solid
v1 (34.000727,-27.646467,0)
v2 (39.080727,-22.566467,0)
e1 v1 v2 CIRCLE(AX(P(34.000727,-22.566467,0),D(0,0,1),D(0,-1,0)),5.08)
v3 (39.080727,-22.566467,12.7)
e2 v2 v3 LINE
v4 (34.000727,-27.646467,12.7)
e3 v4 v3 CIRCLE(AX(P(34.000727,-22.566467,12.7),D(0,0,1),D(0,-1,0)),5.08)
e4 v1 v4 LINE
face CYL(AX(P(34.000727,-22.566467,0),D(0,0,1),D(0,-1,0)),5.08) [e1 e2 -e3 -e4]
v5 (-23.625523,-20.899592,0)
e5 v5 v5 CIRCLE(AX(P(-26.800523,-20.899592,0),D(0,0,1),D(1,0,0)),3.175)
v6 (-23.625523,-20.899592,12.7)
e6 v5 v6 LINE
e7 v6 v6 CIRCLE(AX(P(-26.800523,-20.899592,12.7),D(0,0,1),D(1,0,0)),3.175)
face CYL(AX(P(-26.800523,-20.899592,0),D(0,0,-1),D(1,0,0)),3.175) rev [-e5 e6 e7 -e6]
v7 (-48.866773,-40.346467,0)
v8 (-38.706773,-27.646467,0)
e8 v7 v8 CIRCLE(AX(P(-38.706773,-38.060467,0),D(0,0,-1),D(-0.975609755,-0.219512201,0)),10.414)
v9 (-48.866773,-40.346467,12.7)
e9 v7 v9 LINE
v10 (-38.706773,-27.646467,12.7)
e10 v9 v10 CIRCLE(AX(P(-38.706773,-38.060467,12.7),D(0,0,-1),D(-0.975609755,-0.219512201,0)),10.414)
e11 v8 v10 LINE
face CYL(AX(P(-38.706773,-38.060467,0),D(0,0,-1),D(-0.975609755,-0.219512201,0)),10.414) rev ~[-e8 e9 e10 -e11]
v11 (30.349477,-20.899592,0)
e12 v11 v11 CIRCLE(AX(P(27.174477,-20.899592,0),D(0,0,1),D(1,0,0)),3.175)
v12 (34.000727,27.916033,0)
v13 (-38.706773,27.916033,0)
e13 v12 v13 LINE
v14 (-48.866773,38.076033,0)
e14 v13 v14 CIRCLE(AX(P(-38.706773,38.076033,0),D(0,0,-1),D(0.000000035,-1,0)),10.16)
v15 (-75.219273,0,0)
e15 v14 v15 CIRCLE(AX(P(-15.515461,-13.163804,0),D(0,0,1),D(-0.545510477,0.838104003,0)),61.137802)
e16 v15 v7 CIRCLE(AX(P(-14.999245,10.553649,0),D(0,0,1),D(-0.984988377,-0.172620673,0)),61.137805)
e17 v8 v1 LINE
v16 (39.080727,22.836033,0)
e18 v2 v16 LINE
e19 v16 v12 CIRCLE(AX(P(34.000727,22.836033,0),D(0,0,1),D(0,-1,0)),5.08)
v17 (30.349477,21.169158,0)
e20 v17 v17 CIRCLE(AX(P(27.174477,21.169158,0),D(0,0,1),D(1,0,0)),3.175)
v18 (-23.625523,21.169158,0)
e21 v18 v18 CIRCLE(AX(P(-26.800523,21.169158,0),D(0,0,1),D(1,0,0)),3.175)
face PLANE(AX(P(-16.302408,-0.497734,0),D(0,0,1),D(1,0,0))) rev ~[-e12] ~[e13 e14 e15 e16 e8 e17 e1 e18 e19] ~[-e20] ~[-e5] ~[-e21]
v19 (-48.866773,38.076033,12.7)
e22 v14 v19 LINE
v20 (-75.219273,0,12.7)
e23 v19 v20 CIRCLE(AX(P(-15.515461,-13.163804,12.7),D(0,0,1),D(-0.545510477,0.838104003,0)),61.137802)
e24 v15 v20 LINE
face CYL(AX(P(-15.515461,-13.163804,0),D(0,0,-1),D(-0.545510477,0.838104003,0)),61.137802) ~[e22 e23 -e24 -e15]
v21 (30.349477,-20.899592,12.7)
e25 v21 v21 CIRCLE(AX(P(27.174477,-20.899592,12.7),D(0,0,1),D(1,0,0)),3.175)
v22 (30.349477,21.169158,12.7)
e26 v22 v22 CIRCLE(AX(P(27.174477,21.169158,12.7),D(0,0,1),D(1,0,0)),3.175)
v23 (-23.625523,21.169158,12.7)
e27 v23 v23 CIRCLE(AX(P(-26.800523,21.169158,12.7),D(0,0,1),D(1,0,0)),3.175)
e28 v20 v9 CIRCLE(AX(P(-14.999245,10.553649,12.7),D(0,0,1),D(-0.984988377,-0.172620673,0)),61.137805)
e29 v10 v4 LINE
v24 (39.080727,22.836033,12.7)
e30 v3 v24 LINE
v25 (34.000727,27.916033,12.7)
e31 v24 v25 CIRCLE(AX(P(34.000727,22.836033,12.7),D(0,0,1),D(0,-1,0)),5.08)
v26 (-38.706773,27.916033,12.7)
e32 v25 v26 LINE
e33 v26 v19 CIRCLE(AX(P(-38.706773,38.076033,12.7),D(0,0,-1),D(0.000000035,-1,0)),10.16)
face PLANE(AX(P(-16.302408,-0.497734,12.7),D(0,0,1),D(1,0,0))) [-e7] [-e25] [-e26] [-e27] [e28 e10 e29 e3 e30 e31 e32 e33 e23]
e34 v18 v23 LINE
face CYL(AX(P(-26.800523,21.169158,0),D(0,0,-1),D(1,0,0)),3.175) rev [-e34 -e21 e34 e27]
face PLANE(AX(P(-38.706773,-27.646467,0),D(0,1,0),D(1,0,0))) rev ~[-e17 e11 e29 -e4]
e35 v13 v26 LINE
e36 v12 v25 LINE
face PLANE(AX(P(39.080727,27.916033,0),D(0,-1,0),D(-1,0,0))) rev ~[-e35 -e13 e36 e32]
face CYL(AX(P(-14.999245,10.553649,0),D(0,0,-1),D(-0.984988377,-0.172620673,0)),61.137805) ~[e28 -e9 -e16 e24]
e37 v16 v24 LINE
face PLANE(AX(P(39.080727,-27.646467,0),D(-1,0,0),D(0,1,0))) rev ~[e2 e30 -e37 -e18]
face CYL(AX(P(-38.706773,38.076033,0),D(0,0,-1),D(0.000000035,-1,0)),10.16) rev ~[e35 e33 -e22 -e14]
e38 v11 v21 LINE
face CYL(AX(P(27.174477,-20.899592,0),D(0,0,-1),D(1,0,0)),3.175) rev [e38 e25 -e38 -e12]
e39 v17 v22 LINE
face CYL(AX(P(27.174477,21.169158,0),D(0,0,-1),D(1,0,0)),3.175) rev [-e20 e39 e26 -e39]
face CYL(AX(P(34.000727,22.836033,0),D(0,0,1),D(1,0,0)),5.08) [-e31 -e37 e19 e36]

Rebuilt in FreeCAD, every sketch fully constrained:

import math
import FreeCAD as App
import Part
import Sketcher
Q = App.Units.Quantity


def edges_at(feature, points):
    """Names of the edges that pass closest to the given points."""
    edges = feature.Shape.Edges
    near = lambda p: min(range(len(edges)), key=lambda i: edges[i].distToShape(Part.Vertex(*p))[0])
    return sorted({f"Edge{near(p) + 1}" for p in points})

doc = App.newDocument("Part")
params = doc.addObject("Spreadsheet::Sheet", "Params")
for row, (alias, value) in enumerate([
    ("sketch1_radius", "0.4 in"),
    ("sketch1_diameter", "0.25 in"),
    ("sketch1_radius2", "0.41 in"),
    ("sketch1_radius3", "2.4070001 in"),
    ("sketch1_width", "3.0625 in"),
    ("pad1_length", "0.5 in"),
    ("fillet_radius", "0.2 in"),
], start=1):
    params.set(f"A{row}", alias)
    params.set(f"B{row}", "=" + value)
    params.setAlias(f"B{row}", alias)

body = doc.addObject("PartDesign::Body", "Body")

# Sketch on XY plane
sketch1 = doc.addObject("Sketcher::SketchObject", "Sketch")
body.addObject(sketch1)
sketch1.AttachmentSupport = (doc.XY_Plane, [""])
sketch1.MapMode = "FlatFace"
sketch1.addGeometry([
    Part.LineSegment(App.Vector(-38.7, -27.6, 0), App.Vector(39.1, -27.6, 0)),  # 0
    Part.LineSegment(App.Vector(39.1, -27.6, 0), App.Vector(39.1, 27.9, 0)),  # 1
    Part.LineSegment(App.Vector(39.1, 27.9, 0), App.Vector(-38.7, 27.9, 0)),  # 2
    Part.ArcOfCircle(Part.Circle(App.Vector(-38.7, 38.1, 0), App.Vector(0, 0, 1), 10.2), math.radians(180), math.radians(270)),  # 3
    Part.ArcOfCircle(Part.Circle(App.Vector(-15.5, -13.2, 0), App.Vector(0, 0, 1), 61.1), math.radians(123), math.radians(168)),  # 4
    Part.ArcOfCircle(Part.Circle(App.Vector(-15, 10.6, 0), App.Vector(0, 0, 1), 61.1), math.radians(-170), math.radians(-124)),  # 5
    Part.ArcOfCircle(Part.Circle(App.Vector(-38.7, -38.1, 0), App.Vector(0, 0, 1), 10.4), math.radians(90), math.radians(193)),  # 6
    Part.Circle(App.Vector(-26.8, -20.9, 0), App.Vector(0, 0, 1), 3.2),  # 7
    Part.Circle(App.Vector(27.2, -20.9, 0), App.Vector(0, 0, 1), 3.2),  # 8
    Part.Circle(App.Vector(-26.8, 21.2, 0), App.Vector(0, 0, 1), 3.2),  # 9
    Part.Circle(App.Vector(27.2, 21.2, 0), App.Vector(0, 0, 1), 3.2),  # 10
], False)
sketch1.addConstraint([
    Sketcher.Constraint("Coincident", 0, 2, 1, 1),
    Sketcher.Constraint("Coincident", 1, 2, 2, 1),
    Sketcher.Constraint("Tangent", 2, 2, 3, 2),
    Sketcher.Constraint("Coincident", 3, 1, 4, 1),
    Sketcher.Constraint("Coincident", 4, 2, 5, 1),
    Sketcher.Constraint("Coincident", 5, 2, 6, 2),
    Sketcher.Constraint("Tangent", 6, 1, 0, 1),
    Sketcher.Constraint("Horizontal", 0),
    Sketcher.Constraint("Vertical", 1),
    Sketcher.Constraint("Horizontal", 2),
    Sketcher.Constraint("Equal", 7, 8),
    Sketcher.Constraint("Equal", 8, 9),
    Sketcher.Constraint("Equal", 9, 10),
    Sketcher.Constraint("PointOnObject", 4, 2, -1),
    Sketcher.Constraint("Horizontal", 7, 3, 8, 3),
    Sketcher.Constraint("Horizontal", 9, 3, 10, 3),
    Sketcher.Constraint("Vertical", 3, 3, 6, 3),
    Sketcher.Constraint("Vertical", 7, 3, 9, 3),
    Sketcher.Constraint("Vertical", 8, 3, 10, 3),
    Sketcher.Constraint("Vertical", 3, 1, 5, 2),
    Sketcher.Constraint("Radius", 3, Q("0.4 in")),
    Sketcher.Constraint("Diameter", 7, Q("0.25 in")),
    Sketcher.Constraint("Radius", 6, Q("0.41 in")),
    Sketcher.Constraint("Radius", 4, Q("2.4070001 in")),
    Sketcher.Constraint("DistanceY", 2, 2, 3, 1, Q("0.4 in")),
    Sketcher.Constraint("DistanceX", 0, 1, 0, 2, Q("3.0625 in")),
    Sketcher.Constraint("DistanceY", 1, 1, 1, 2, Q("2.1875 in")),
    Sketcher.Constraint("DistanceX", 6, 3, 7, 3, Q("0.46875 in")),
    Sketcher.Constraint("DistanceX", 7, 3, 8, 3, Q("2.125 in")),
    Sketcher.Constraint("DistanceY", 7, 3, 9, 3, Q("1.65625 in")),
    Sketcher.Constraint("DistanceY", 0, 2, 8, 3, Q("0.265625 in")),
    Sketcher.Constraint("DistanceX", 4, 2, 2, 2, Q("1.4375 in")),
    Sketcher.Constraint("Radius", 5, 61.137805),
    Sketcher.Constraint("DistanceX", 4, 3, -1, 1, 15.515461),
    Sketcher.Constraint("DistanceY", -1, 1, 5, 3, 10.553649),
])
sketch1.setExpression("Constraints[20]", "Params.sketch1_radius")
sketch1.setExpression("Constraints[21]", "Params.sketch1_diameter")
sketch1.setExpression("Constraints[22]", "Params.sketch1_radius2")
sketch1.setExpression("Constraints[23]", "Params.sketch1_radius3")
sketch1.setExpression("Constraints[25]", "Params.sketch1_width")
pad1 = doc.addObject("PartDesign::Pad", "Pad")
body.addObject(pad1)
pad1.Profile = sketch1
pad1.setExpression("Length", "Params.pad1_length")
doc.recompute()

fillet = doc.addObject("PartDesign::Fillet", "Fillet")
body.addObject(fillet)
fillet.Base = (pad1, edges_at(pad1, [(39.081, -27.646, 6.35), (39.081, 27.916, 6.35)]))
fillet.setExpression("Radius", "Params.fillet_radius")

doc.recompute()
